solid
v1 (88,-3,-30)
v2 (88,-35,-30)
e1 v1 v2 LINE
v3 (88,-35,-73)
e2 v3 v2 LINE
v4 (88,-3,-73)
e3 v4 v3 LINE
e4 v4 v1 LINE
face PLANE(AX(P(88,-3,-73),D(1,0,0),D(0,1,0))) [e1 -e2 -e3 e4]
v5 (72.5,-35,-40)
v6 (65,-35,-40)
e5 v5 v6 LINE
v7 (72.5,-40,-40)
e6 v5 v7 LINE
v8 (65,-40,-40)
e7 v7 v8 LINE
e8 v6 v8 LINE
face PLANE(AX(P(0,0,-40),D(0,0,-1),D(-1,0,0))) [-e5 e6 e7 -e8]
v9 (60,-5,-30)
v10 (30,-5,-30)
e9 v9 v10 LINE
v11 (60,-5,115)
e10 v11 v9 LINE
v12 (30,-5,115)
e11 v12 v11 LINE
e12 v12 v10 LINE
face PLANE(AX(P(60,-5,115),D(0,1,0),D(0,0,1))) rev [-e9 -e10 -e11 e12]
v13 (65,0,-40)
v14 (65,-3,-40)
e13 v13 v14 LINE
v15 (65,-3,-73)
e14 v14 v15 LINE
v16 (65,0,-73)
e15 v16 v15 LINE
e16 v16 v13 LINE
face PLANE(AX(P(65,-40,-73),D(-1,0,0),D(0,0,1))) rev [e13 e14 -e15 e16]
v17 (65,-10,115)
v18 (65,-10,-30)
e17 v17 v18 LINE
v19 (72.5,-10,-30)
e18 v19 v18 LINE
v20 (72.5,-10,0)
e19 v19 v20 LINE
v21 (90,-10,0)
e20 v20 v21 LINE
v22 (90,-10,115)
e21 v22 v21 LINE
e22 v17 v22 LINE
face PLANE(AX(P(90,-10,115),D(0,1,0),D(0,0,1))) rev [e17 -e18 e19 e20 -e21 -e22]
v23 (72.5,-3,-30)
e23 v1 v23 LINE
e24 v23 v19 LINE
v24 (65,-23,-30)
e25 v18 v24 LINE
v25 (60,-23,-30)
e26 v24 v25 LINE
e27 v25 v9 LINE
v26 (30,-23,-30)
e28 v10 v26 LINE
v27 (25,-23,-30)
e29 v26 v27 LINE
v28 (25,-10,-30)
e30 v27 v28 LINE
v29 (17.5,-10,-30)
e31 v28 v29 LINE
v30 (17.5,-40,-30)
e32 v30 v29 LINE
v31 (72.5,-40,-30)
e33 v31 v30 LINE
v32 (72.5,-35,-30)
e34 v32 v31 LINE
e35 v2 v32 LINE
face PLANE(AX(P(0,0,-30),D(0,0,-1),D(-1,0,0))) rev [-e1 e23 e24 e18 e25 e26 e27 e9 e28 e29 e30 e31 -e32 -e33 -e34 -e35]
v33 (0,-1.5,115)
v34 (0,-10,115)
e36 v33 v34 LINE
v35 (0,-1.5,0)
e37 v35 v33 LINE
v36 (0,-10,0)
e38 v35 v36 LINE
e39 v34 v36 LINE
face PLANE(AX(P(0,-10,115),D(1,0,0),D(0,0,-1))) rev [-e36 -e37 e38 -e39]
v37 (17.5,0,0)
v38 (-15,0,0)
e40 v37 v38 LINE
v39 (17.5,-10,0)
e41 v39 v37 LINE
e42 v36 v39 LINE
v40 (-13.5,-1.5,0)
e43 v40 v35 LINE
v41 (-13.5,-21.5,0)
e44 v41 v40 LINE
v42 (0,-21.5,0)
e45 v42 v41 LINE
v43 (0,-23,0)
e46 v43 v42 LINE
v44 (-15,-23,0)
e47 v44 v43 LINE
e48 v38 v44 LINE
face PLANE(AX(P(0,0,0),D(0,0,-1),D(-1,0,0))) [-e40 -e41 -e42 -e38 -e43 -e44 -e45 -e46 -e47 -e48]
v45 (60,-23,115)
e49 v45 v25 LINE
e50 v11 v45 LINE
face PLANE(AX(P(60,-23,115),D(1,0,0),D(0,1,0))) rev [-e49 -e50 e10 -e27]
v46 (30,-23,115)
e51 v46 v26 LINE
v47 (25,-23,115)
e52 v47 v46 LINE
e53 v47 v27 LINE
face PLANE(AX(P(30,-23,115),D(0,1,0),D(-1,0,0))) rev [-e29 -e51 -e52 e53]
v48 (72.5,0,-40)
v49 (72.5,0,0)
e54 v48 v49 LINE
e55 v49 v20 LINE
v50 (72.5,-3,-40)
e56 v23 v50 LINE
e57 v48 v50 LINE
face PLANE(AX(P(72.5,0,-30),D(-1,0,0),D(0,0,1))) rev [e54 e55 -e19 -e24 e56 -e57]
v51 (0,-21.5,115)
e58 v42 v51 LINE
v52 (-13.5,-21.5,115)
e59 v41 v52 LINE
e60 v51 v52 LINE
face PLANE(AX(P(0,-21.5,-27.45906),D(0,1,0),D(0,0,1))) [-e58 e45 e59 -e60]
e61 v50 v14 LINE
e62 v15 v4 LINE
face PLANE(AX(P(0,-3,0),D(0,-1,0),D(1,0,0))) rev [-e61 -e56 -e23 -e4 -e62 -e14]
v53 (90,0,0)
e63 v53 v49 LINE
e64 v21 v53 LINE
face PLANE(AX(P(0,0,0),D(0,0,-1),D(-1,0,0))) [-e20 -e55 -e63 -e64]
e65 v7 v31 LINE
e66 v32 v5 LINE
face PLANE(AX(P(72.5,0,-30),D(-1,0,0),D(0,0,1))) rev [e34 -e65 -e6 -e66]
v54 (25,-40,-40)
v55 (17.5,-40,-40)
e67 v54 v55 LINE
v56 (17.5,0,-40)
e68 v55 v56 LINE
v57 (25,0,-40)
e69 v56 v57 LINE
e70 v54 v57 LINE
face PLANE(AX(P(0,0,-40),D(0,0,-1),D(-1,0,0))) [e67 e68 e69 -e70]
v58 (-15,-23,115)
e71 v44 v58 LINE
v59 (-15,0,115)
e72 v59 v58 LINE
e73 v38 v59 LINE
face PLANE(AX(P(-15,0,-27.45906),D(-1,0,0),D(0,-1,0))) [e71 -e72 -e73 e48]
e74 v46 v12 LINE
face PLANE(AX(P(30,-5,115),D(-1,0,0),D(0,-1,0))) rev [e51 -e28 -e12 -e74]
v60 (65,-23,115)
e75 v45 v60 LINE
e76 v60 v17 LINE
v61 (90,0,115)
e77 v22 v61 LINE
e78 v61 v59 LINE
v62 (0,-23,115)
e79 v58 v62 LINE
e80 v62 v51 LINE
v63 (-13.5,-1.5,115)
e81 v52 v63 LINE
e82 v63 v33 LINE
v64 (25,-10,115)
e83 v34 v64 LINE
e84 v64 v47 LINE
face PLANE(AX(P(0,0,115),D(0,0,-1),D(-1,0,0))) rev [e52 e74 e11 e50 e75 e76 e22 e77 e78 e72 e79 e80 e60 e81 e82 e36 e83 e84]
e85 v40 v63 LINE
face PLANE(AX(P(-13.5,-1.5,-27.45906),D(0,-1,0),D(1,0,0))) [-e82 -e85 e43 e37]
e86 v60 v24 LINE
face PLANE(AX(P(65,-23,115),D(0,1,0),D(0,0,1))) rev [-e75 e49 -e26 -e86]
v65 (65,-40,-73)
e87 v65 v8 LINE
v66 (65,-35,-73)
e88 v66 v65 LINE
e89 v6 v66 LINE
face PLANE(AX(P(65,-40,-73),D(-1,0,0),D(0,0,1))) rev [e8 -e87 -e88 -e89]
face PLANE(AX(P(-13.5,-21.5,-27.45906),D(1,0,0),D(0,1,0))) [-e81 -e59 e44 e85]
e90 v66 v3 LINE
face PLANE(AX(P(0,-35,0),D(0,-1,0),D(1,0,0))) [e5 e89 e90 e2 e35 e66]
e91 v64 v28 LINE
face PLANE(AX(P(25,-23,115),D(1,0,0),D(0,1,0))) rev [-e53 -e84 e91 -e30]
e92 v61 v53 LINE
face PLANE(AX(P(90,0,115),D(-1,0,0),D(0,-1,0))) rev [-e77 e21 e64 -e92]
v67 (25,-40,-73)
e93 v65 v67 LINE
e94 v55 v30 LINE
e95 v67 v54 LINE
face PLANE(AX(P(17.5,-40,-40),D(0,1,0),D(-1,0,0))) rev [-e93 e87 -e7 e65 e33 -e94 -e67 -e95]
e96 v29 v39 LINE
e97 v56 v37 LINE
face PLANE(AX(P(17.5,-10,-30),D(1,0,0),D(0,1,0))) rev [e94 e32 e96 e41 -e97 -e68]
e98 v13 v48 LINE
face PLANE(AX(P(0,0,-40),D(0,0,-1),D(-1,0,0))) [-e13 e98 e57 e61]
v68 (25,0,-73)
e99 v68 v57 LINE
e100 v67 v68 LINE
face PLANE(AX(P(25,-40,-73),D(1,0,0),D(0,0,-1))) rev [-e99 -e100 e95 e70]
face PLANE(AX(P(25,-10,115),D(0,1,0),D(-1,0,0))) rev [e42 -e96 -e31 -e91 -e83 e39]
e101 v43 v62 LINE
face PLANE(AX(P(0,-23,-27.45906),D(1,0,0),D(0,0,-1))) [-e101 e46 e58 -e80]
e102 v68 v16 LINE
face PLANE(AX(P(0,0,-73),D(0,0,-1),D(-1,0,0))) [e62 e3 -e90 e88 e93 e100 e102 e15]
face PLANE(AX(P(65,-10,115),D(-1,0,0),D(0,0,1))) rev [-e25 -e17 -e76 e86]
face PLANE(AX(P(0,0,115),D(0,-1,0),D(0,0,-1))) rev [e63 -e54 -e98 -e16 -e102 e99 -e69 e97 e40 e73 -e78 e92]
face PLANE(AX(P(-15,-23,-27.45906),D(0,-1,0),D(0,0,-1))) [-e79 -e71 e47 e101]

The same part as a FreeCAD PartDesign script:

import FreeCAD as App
import Part
import Sketcher
Q = App.Units.Quantity

doc = App.newDocument("Part")
params = doc.addObject("Spreadsheet::Sheet", "Params")
for row, (alias, value) in enumerate([
    ("sketch1_width", "90 mm"),
    ("sketch1_width2", "25 mm"),
    ("sketch1_width3", "5 mm"),
    ("sketch1_height", "10 mm"),
    ("sketch1_height2", "13 mm"),
    ("pad1_length", "115 mm"),
    ("sketch2_width", "55 mm"),
    ("sketch2_width2", "5 mm"),
    ("sketch2_width3", "30 mm"),
    ("sketch2_height", "10 mm"),
    ("sketch2_height2", "13 mm"),
    ("pad2_length", "30 mm"),
    ("sketch3_width", "55 mm"),
    ("sketch3_height", "40 mm"),
    ("pad3_length", "10 mm"),
    ("sketch4_width", "40 mm"),
    ("pad4_length", "33 mm"),
    ("sketch5_width", "23 mm"),
    ("sketch5_height", "33 mm"),
    ("sketch5_height2", "43 mm"),
    ("sketch5_width2", "15.5 mm"),
    ("pad5_length", "32 mm"),
    ("sketch6_width", "15 mm"),
    ("sketch6_height", "23 mm"),
    ("sketch6_height2", "20 mm"),
    ("sketch6_width2", "13.5 mm"),
    ("pad6_length", "115 mm"),
], start=1):
    params.set(f"A{row}", alias)
    params.set(f"B{row}", "=" + value)
    params.setAlias(f"B{row}", alias)

body = doc.addObject("PartDesign::Body", "Body")

sketch1 = body.newObject("Sketcher::SketchObject", "Sketch")
sketch1.AttachmentSupport = (doc.getObject("XY_Plane"), [""])
sketch1.MapMode = "FlatFace"
sketch1.addGeometry(Part.LineSegment(App.Vector(90, 0, 0), App.Vector(0, 0, 0)), False)
sketch1.addGeometry(Part.LineSegment(App.Vector(0, 0, 0), App.Vector(0, -10, 0)), False)
sketch1.addGeometry(Part.LineSegment(App.Vector(0, -10, 0), App.Vector(25, -10, 0)), False)
sketch1.addGeometry(Part.LineSegment(App.Vector(25, -10, 0), App.Vector(25, -23, 0)), False)
sketch1.addGeometry(Part.LineSegment(App.Vector(25, -23, 0), App.Vector(30, -23, 0)), False)
sketch1.addGeometry(Part.LineSegment(App.Vector(30, -23, 0), App.Vector(30, -5, 0)), False)
sketch1.addGeometry(Part.LineSegment(App.Vector(30, -5, 0), App.Vector(60, -5, 0)), False)
sketch1.addGeometry(Part.LineSegment(App.Vector(60, -5, 0), App.Vector(60, -23, 0)), False)
sketch1.addGeometry(Part.LineSegment(App.Vector(60, -23, 0), App.Vector(65, -23, 0)), False)
sketch1.addGeometry(Part.LineSegment(App.Vector(65, -23, 0), App.Vector(65, -10, 0)), False)
sketch1.addGeometry(Part.LineSegment(App.Vector(65, -10, 0), App.Vector(90, -10, 0)), False)
sketch1.addGeometry(Part.LineSegment(App.Vector(90, -10, 0), App.Vector(90, 0, 0)), False)
sketch1.addConstraint(Sketcher.Constraint("Coincident", 0, 2, 1, 1))
sketch1.addConstraint(Sketcher.Constraint("Coincident", 1, 2, 2, 1))
sketch1.addConstraint(Sketcher.Constraint("Coincident", 2, 2, 3, 1))
sketch1.addConstraint(Sketcher.Constraint("Coincident", 3, 2, 4, 1))
sketch1.addConstraint(Sketcher.Constraint("Coincident", 4, 2, 5, 1))
sketch1.addConstraint(Sketcher.Constraint("Coincident", 5, 2, 6, 1))
sketch1.addConstraint(Sketcher.Constraint("Coincident", 6, 2, 7, 1))
sketch1.addConstraint(Sketcher.Constraint("Coincident", 7, 2, 8, 1))
sketch1.addConstraint(Sketcher.Constraint("Coincident", 8, 2, 9, 1))
sketch1.addConstraint(Sketcher.Constraint("Coincident", 9, 2, 10, 1))
sketch1.addConstraint(Sketcher.Constraint("Coincident", 10, 2, 11, 1))
sketch1.addConstraint(Sketcher.Constraint("Coincident", 11, 2, 0, 1))
sketch1.addConstraint(Sketcher.Constraint("Horizontal", 0))
sketch1.addConstraint(Sketcher.Constraint("Vertical", 1))
sketch1.addConstraint(Sketcher.Constraint("Horizontal", 2))
sketch1.addConstraint(Sketcher.Constraint("Vertical", 3))
sketch1.addConstraint(Sketcher.Constraint("Horizontal", 4))
sketch1.addConstraint(Sketcher.Constraint("Vertical", 5))
sketch1.addConstraint(Sketcher.Constraint("Horizontal", 6))
sketch1.addConstraint(Sketcher.Constraint("Vertical", 7))
sketch1.addConstraint(Sketcher.Constraint("Horizontal", 8))
sketch1.addConstraint(Sketcher.Constraint("Vertical", 9))
sketch1.addConstraint(Sketcher.Constraint("Horizontal", 10))
sketch1.addConstraint(Sketcher.Constraint("Vertical", 11))
sketch1.addConstraint(Sketcher.Constraint("Coincident", 0, 2, -1, 1))
sketch1.addConstraint(Sketcher.Constraint("Horizontal", 4, 2, 7, 2))
sketch1.addConstraint(Sketcher.Constraint("Horizontal", 2, 2, 9, 2))
sketch1.addConstraint(Sketcher.Constraint("Equal", 4, 8))
sketch1.addConstraint(Sketcher.Constraint("Equal", 2, 10))
sketch1.addConstraint(Sketcher.Constraint("DistanceX", 0, 2, 0, 1, Q("90 mm")))
sketch1.addConstraint(Sketcher.Constraint("DistanceX", 2, 1, 2, 2, Q("25 mm")))
sketch1.addConstraint(Sketcher.Constraint("DistanceX", 4, 1, 4, 2, Q("5 mm")))
sketch1.addConstraint(Sketcher.Constraint("DistanceY", 1, 2, 1, 1, Q("10 mm")))
sketch1.addConstraint(Sketcher.Constraint("DistanceY", 3, 2, 3, 1, Q("13 mm")))
sketch1.addConstraint(Sketcher.Constraint("DistanceY", 5, 1, 5, 2, Q("18 mm")))
sketch1.setExpression("Constraints[29]", "Params.sketch1_width")
sketch1.setExpression("Constraints[30]", "Params.sketch1_width2")
sketch1.setExpression("Constraints[31]", "Params.sketch1_width3")
sketch1.setExpression("Constraints[32]", "Params.sketch1_height")
sketch1.setExpression("Constraints[33]", "Params.sketch1_height2")
pad1 = body.newObject("PartDesign::Pad", "Pad")
pad1.Profile = sketch1
pad1.setExpression("Length", "Params.pad1_length")

sketch2 = body.newObject("Sketcher::SketchObject", "Sketch001")
sketch2.AttachmentSupport = (doc.getObject("XY_Plane"), [""])
sketch2.MapMode = "FlatFace"
sketch2.addGeometry(Part.LineSegment(App.Vector(18, -10, 0), App.Vector(18, 0, 0)), False)
sketch2.addGeometry(Part.LineSegment(App.Vector(18, 0, 0), App.Vector(72, 0, 0)), False)
sketch2.addGeometry(Part.LineSegment(App.Vector(72, 0, 0), App.Vector(72, -10, 0)), False)
sketch2.addGeometry(Part.LineSegment(App.Vector(72, -10, 0), App.Vector(65, -10, 0)), False)
sketch2.addGeometry(Part.LineSegment(App.Vector(65, -10, 0), App.Vector(65, -23, 0)), False)
sketch2.addGeometry(Part.LineSegment(App.Vector(65, -23, 0), App.Vector(60, -23, 0)), False)
sketch2.addGeometry(Part.LineSegment(App.Vector(60, -23, 0), App.Vector(60, -5, 0)), False)
sketch2.addGeometry(Part.LineSegment(App.Vector(60, -5, 0), App.Vector(30, -5, 0)), False)
sketch2.addGeometry(Part.LineSegment(App.Vector(30, -5, 0), App.Vector(30, -23, 0)), False)
sketch2.addGeometry(Part.LineSegment(App.Vector(30, -23, 0), App.Vector(25, -23, 0)), False)
sketch2.addGeometry(Part.LineSegment(App.Vector(25, -23, 0), App.Vector(25, -10, 0)), False)
sketch2.addGeometry(Part.LineSegment(App.Vector(25, -10, 0), App.Vector(18, -10, 0)), False)
sketch2.addConstraint(Sketcher.Constraint("Coincident", 0, 2, 1, 1))
sketch2.addConstraint(Sketcher.Constraint("Coincident", 1, 2, 2, 1))
sketch2.addConstraint(Sketcher.Constraint("Coincident", 2, 2, 3, 1))
sketch2.addConstraint(Sketcher.Constraint("Coincident", 3, 2, 4, 1))
sketch2.addConstraint(Sketcher.Constraint("Coincident", 4, 2, 5, 1))
sketch2.addConstraint(Sketcher.Constraint("Coincident", 5, 2, 6, 1))
sketch2.addConstraint(Sketcher.Constraint("Coincident", 6, 2, 7, 1))
sketch2.addConstraint(Sketcher.Constraint("Coincident", 7, 2, 8, 1))
sketch2.addConstraint(Sketcher.Constraint("Coincident", 8, 2, 9, 1))
sketch2.addConstraint(Sketcher.Constraint("Coincident", 9, 2, 10, 1))
sketch2.addConstraint(Sketcher.Constraint("Coincident", 10, 2, 11, 1))
sketch2.addConstraint(Sketcher.Constraint("Coincident", 11, 2, 0, 1))
sketch2.addConstraint(Sketcher.Constraint("Vertical", 0))
sketch2.addConstraint(Sketcher.Constraint("Horizontal", 1))
sketch2.addConstraint(Sketcher.Constraint("Vertical", 2))
sketch2.addConstraint(Sketcher.Constraint("Horizontal", 3))
sketch2.addConstraint(Sketcher.Constraint("Vertical", 4))
sketch2.addConstraint(Sketcher.Constraint("Horizontal", 5))
sketch2.addConstraint(Sketcher.Constraint("Vertical", 6))
sketch2.addConstraint(Sketcher.Constraint("Horizontal", 7))
sketch2.addConstraint(Sketcher.Constraint("Vertical", 8))
sketch2.addConstraint(Sketcher.Constraint("Horizontal", 9))
sketch2.addConstraint(Sketcher.Constraint("Vertical", 10))
sketch2.addConstraint(Sketcher.Constraint("Horizontal", 11))
sketch2.addConstraint(Sketcher.Constraint("PointOnObject", 0, 2, -1))
sketch2.addConstraint(Sketcher.Constraint("Horizontal", 5, 2, 8, 2))
sketch2.addConstraint(Sketcher.Constraint("Horizontal", 3, 2, 10, 2))
sketch2.addConstraint(Sketcher.Constraint("Equal", 5, 9))
sketch2.addConstraint(Sketcher.Constraint("Equal", 3, 11))
sketch2.addConstraint(Sketcher.Constraint("DistanceX", 1, 1, 1, 2, Q("55 mm")))
sketch2.addConstraint(Sketcher.Constraint("DistanceX", 5, 2, 5, 1, Q("5 mm")))
sketch2.addConstraint(Sketcher.Constraint("DistanceX", 7, 2, 7, 1, Q("30 mm")))
sketch2.addConstraint(Sketcher.Constraint("DistanceY", 0, 1, 0, 2, Q("10 mm")))
sketch2.addConstraint(Sketcher.Constraint("DistanceY", 4, 2, 4, 1, Q("13 mm")))
sketch2.addConstraint(Sketcher.Constraint("DistanceY", 6, 1, 6, 2, Q("18 mm")))
sketch2.addConstraint(Sketcher.Constraint("DistanceX", -1, 1, 3, 2, Q("65 mm")))
sketch2.setExpression("Constraints[29]", "Params.sketch2_width")
sketch2.setExpression("Constraints[30]", "Params.sketch2_width2")
sketch2.setExpression("Constraints[31]", "Params.sketch2_width3")
sketch2.setExpression("Constraints[32]", "Params.sketch2_height")
sketch2.setExpression("Constraints[33]", "Params.sketch2_height2")
pad2 = body.newObject("PartDesign::Pad", "Pad001")
pad2.Profile = sketch2
pad2.setExpression("Length", "Params.pad2_length")
pad2.Reversed = True

sketch3 = body.newObject("Sketcher::SketchObject", "Sketch002")
sketch3.AttachmentSupport = (doc.getObject("XY_Plane"), [""])
sketch3.MapMode = "FlatFace"
sketch3.AttachmentOffset = App.Placement(App.Vector(0, 0, -30), App.Rotation())
sketch3.addGeometry(Part.LineSegment(App.Vector(72, 0, 0), App.Vector(72, -40, 0)), False)
sketch3.addGeometry(Part.LineSegment(App.Vector(72, -40, 0), App.Vector(18, -40, 0)), False)
sketch3.addGeometry(Part.LineSegment(App.Vector(18, -40, 0), App.Vector(18, 0, 0)), False)
sketch3.addGeometry(Part.LineSegment(App.Vector(18, 0, 0), App.Vector(72, 0, 0)), False)
sketch3.addConstraint(Sketcher.Constraint("Coincident", 0, 2, 1, 1))
sketch3.addConstraint(Sketcher.Constraint("Coincident", 1, 2, 2, 1))
sketch3.addConstraint(Sketcher.Constraint("Coincident", 2, 2, 3, 1))
sketch3.addConstraint(Sketcher.Constraint("Coincident", 3, 2, 0, 1))
sketch3.addConstraint(Sketcher.Constraint("Vertical", 0))
sketch3.addConstraint(Sketcher.Constraint("Horizontal", 1))
sketch3.addConstraint(Sketcher.Constraint("Vertical", 2))
sketch3.addConstraint(Sketcher.Constraint("Horizontal", 3))
sketch3.addConstraint(Sketcher.Constraint("PointOnObject", 2, 2, -1))
sketch3.addConstraint(Sketcher.Constraint("DistanceX", 1, 2, 1, 1, Q("55 mm")))
sketch3.addConstraint(Sketcher.Constraint("DistanceY", 0, 2, 0, 1, Q("40 mm")))
sketch3.addConstraint(Sketcher.Constraint("DistanceX", -1, 1, 0, 2, Q("72.5 mm")))
sketch3.setExpression("Constraints[9]", "Params.sketch3_width")
sketch3.setExpression("Constraints[10]", "Params.sketch3_height")
pad3 = body.newObject("PartDesign::Pad", "Pad002")
pad3.Profile = sketch3
pad3.setExpression("Length", "Params.pad3_length")
pad3.Reversed = True

sketch4 = body.newObject("Sketcher::SketchObject", "Sketch003")
sketch4.AttachmentSupport = (doc.getObject("XY_Plane"), [""])
sketch4.MapMode = "FlatFace"
sketch4.AttachmentOffset = App.Placement(App.Vector(0, 0, -40), App.Rotation())
sketch4.addGeometry(Part.LineSegment(App.Vector(65, 0, 0), App.Vector(65, -40, 0)), False)
sketch4.addGeometry(Part.LineSegment(App.Vector(65, -40, 0), App.Vector(25, -40, 0)), False)
sketch4.addGeometry(Part.LineSegment(App.Vector(25, -40, 0), App.Vector(25, 0, 0)), False)
sketch4.addGeometry(Part.LineSegment(App.Vector(25, 0, 0), App.Vector(65, 0, 0)), False)
sketch4.addConstraint(Sketcher.Constraint("Coincident", 0, 2, 1, 1))
sketch4.addConstraint(Sketcher.Constraint("Coincident", 1, 2, 2, 1))
sketch4.addConstraint(Sketcher.Constraint("Coincident", 2, 2, 3, 1))
sketch4.addConstraint(Sketcher.Constraint("Coincident", 3, 2, 0, 1))
sketch4.addConstraint(Sketcher.Constraint("Vertical", 0))
sketch4.addConstraint(Sketcher.Constraint("Horizontal", 1))
sketch4.addConstraint(Sketcher.Constraint("Vertical", 2))
sketch4.addConstraint(Sketcher.Constraint("Horizontal", 3))
sketch4.addConstraint(Sketcher.Constraint("PointOnObject", 2, 2, -1))
sketch4.addConstraint(Sketcher.Constraint("Equal", 3, 0))
sketch4.addConstraint(Sketcher.Constraint("DistanceX", 1, 2, 1, 1, Q("40 mm")))
sketch4.addConstraint(Sketcher.Constraint("DistanceX", -1, 1, 0, 2, Q("65 mm")))
sketch4.setExpression("Constraints[10]", "Params.sketch4_width")
pad4 = body.newObject("PartDesign::Pad", "Pad003")
pad4.Profile = sketch4
pad4.setExpression("Length", "Params.pad4_length")
pad4.Reversed = True

sketch5 = body.newObject("Sketcher::SketchObject", "Sketch004")
sketch5.AttachmentSupport = (doc.getObject("XZ_Plane"), [""])
sketch5.MapMode = "FlatFace"
sketch5.AttachmentOffset = App.Placement(App.Vector(0, 0, 35), App.Rotation())
sketch5.addGeometry(Part.LineSegment(App.Vector(65, -40, 0), App.Vector(65, -73, 0)), False)
sketch5.addGeometry(Part.LineSegment(App.Vector(65, -73, 0), App.Vector(88, -73, 0)), False)
sketch5.addGeometry(Part.LineSegment(App.Vector(88, -73, 0), App.Vector(88, -30, 0)), False)
sketch5.addGeometry(Part.LineSegment(App.Vector(88, -30, 0), App.Vector(72, -30, 0)), False)
sketch5.addGeometry(Part.LineSegment(App.Vector(72, -30, 0), App.Vector(72, -40, 0)), False)
sketch5.addGeometry(Part.LineSegment(App.Vector(72, -40, 0), App.Vector(65, -40, 0)), False)
sketch5.addConstraint(Sketcher.Constraint("Coincident", 0, 2, 1, 1))
sketch5.addConstraint(Sketcher.Constraint("Coincident", 1, 2, 2, 1))
sketch5.addConstraint(Sketcher.Constraint("Coincident", 2, 2, 3, 1))
sketch5.addConstraint(Sketcher.Constraint("Coincident", 3, 2, 4, 1))
sketch5.addConstraint(Sketcher.Constraint("Coincident", 4, 2, 5, 1))
sketch5.addConstraint(Sketcher.Constraint("Coincident", 5, 2, 0, 1))
sketch5.addConstraint(Sketcher.Constraint("Vertical", 0))
sketch5.addConstraint(Sketcher.Constraint("Horizontal", 1))
sketch5.addConstraint(Sketcher.Constraint("Vertical", 2))
sketch5.addConstraint(Sketcher.Constraint("Horizontal", 3))
sketch5.addConstraint(Sketcher.Constraint("Vertical", 4))
sketch5.addConstraint(Sketcher.Constraint("Horizontal", 5))
sketch5.addConstraint(Sketcher.Constraint("DistanceX", 1, 1, 1, 2, Q("23 mm")))
sketch5.addConstraint(Sketcher.Constraint("DistanceY", 0, 2, 0, 1, Q("33 mm")))
sketch5.addConstraint(Sketcher.Constraint("DistanceY", 2, 1, 2, 2, Q("43 mm")))
sketch5.addConstraint(Sketcher.Constraint("DistanceX", 3, 2, 3, 1, Q("15.5 mm")))
sketch5.addConstraint(Sketcher.Constraint("DistanceX", -1, 1, 0, 2, Q("65 mm")))
sketch5.addConstraint(Sketcher.Constraint("DistanceY", 0, 2, -1, 1, Q("73 mm")))
sketch5.setExpression("Constraints[12]", "Params.sketch5_width")
sketch5.setExpression("Constraints[13]", "Params.sketch5_height")
sketch5.setExpression("Constraints[14]", "Params.sketch5_height2")
sketch5.setExpression("Constraints[15]", "Params.sketch5_width2")
pad5 = body.newObject("PartDesign::Pad", "Pad004")
pad5.Profile = sketch5
pad5.setExpression("Length", "Params.pad5_length")
pad5.Reversed = True

sketch6 = body.newObject("Sketcher::SketchObject", "Sketch005")
sketch6.AttachmentSupport = (doc.getObject("XY_Plane"), [""])
sketch6.MapMode = "FlatFace"
sketch6.AttachmentOffset = App.Placement(App.Vector(0, 0, 115), App.Rotation())
sketch6.addGeometry(Part.LineSegment(App.Vector(0, 0, 0), App.Vector(-15, 0, 0)), False)
sketch6.addGeometry(Part.LineSegment(App.Vector(-15, 0, 0), App.Vector(-15, -23, 0)), False)
sketch6.addGeometry(Part.LineSegment(App.Vector(-15, -23, 0), App.Vector(0, -23, 0)), False)
sketch6.addGeometry(Part.LineSegment(App.Vector(0, -23, 0), App.Vector(0, -21.5, 0)), False)
sketch6.addGeometry(Part.LineSegment(App.Vector(0, -21.5, 0), App.Vector(-13.5, -21.5, 0)), False)
sketch6.addGeometry(Part.LineSegment(App.Vector(-13.5, -21.5, 0), App.Vector(-13.5, -1.5, 0)), False)
sketch6.addGeometry(Part.LineSegment(App.Vector(-13.5, -1.5, 0), App.Vector(0, -1.5, 0)), False)
sketch6.addGeometry(Part.LineSegment(App.Vector(0, -1.5, 0), App.Vector(0, 0, 0)), False)
sketch6.addConstraint(Sketcher.Constraint("Coincident", 0, 2, 1, 1))
sketch6.addConstraint(Sketcher.Constraint("Coincident", 1, 2, 2, 1))
sketch6.addConstraint(Sketcher.Constraint("Coincident", 2, 2, 3, 1))
sketch6.addConstraint(Sketcher.Constraint("Coincident", 3, 2, 4, 1))
sketch6.addConstraint(Sketcher.Constraint("Coincident", 4, 2, 5, 1))
sketch6.addConstraint(Sketcher.Constraint("Coincident", 5, 2, 6, 1))
sketch6.addConstraint(Sketcher.Constraint("Coincident", 6, 2, 7, 1))
sketch6.addConstraint(Sketcher.Constraint("Coincident", 7, 2, 0, 1))
sketch6.addConstraint(Sketcher.Constraint("Horizontal", 0))
sketch6.addConstraint(Sketcher.Constraint("Vertical", 1))
sketch6.addConstraint(Sketcher.Constraint("Horizontal", 2))
sketch6.addConstraint(Sketcher.Constraint("Vertical", 3))
sketch6.addConstraint(Sketcher.Constraint("Horizontal", 4))
sketch6.addConstraint(Sketcher.Constraint("Vertical", 5))
sketch6.addConstraint(Sketcher.Constraint("Horizontal", 6))
sketch6.addConstraint(Sketcher.Constraint("Vertical", 7))
sketch6.addConstraint(Sketcher.Constraint("Coincident", 7, 2, -1, 1))
sketch6.addConstraint(Sketcher.Constraint("PointOnObject", 2, 2, -2))
sketch6.addConstraint(Sketcher.Constraint("Equal", 3, 7))
sketch6.addConstraint(Sketcher.Constraint("DistanceX", 0, 2, 0, 1, Q("15 mm")))
sketch6.addConstraint(Sketcher.Constraint("DistanceY", 1, 2, 1, 1, Q("23 mm")))
sketch6.addConstraint(Sketcher.Constraint("DistanceY", 5, 1, 5, 2, Q("20 mm")))
sketch6.addConstraint(Sketcher.Constraint("DistanceX", 4, 2, 4, 1, Q("13.5 mm")))
sketch6.setExpression("Constraints[19]", "Params.sketch6_width")
sketch6.setExpression("Constraints[20]", "Params.sketch6_height")
sketch6.setExpression("Constraints[21]", "Params.sketch6_height2")
sketch6.setExpression("Constraints[22]", "Params.sketch6_width2")
pad6 = body.newObject("PartDesign::Pad", "Pad005")
pad6.Profile = sketch6
pad6.setExpression("Length", "Params.pad6_length")
pad6.Reversed = True

doc.recompute()
